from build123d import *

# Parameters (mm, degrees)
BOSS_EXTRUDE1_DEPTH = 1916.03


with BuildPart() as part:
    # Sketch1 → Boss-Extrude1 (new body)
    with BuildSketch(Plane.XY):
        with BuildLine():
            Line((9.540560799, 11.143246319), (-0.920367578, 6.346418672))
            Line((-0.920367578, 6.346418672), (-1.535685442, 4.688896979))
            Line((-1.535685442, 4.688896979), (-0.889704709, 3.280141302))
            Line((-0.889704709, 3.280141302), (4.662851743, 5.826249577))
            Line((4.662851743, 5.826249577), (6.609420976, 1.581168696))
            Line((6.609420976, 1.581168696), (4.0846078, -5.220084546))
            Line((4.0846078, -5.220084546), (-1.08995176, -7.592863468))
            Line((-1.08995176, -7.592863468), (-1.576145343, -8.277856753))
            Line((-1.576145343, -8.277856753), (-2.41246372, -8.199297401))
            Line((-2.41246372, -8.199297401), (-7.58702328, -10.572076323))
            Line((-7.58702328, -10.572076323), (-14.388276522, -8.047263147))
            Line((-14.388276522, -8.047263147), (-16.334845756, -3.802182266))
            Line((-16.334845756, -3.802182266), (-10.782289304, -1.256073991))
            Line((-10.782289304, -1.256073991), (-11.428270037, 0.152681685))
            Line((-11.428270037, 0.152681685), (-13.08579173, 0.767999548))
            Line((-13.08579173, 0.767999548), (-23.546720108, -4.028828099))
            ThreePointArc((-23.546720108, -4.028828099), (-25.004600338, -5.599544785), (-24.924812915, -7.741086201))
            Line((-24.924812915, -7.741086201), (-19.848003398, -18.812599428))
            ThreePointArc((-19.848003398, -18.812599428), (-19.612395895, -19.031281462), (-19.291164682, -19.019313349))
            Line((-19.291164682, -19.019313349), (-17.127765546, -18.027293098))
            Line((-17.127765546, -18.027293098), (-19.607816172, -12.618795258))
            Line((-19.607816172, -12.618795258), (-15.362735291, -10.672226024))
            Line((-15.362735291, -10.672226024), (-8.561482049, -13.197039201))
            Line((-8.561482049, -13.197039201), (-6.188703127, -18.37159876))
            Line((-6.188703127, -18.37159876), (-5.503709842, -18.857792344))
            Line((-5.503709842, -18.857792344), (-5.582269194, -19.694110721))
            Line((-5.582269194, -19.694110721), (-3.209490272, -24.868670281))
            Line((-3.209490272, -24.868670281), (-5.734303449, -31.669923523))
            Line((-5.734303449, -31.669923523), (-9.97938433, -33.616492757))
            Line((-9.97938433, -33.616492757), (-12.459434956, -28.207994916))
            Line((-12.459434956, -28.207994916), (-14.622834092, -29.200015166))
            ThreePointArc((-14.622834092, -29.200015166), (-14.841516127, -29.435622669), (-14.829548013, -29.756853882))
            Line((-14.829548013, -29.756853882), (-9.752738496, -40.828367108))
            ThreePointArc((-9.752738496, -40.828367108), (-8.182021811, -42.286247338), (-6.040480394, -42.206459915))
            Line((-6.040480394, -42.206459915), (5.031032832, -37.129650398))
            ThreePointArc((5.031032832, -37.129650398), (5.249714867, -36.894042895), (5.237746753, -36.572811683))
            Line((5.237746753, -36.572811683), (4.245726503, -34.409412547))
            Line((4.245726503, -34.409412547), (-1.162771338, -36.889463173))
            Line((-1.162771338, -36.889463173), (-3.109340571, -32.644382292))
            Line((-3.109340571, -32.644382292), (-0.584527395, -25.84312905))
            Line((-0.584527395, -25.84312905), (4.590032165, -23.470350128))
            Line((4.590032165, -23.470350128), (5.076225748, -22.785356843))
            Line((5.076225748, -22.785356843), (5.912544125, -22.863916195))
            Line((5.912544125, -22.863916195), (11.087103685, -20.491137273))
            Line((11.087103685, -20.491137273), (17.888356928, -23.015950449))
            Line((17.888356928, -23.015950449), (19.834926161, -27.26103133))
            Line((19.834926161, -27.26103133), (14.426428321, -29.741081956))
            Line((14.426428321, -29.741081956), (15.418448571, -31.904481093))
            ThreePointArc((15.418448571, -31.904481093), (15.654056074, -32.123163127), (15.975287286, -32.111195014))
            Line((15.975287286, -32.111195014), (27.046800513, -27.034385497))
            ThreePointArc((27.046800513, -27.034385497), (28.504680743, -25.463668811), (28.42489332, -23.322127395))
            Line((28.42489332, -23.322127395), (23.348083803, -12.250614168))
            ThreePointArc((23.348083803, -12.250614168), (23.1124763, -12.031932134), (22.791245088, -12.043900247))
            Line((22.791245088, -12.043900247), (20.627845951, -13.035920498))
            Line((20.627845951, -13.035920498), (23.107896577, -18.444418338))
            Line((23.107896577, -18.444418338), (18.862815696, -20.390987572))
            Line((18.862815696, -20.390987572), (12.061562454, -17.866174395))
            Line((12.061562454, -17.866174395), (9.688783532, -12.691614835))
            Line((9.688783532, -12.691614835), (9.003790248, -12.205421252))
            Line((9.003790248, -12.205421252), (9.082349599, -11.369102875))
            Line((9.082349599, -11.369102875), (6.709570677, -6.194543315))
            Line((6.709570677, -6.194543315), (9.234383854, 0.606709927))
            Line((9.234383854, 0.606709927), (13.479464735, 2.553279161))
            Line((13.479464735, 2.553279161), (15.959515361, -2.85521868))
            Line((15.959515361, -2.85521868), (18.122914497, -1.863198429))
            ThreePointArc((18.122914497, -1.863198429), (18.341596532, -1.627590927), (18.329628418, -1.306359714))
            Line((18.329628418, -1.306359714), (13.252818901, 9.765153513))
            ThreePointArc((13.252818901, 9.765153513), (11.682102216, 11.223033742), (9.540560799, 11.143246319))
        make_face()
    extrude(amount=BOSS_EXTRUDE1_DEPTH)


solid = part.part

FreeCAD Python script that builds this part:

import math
import FreeCAD as App
import Part
import Sketcher

doc = App.newDocument("Part")
params = doc.addObject("Spreadsheet::Sheet", "Params")
for row, (alias, value) in enumerate([
    ("sketch1_radius", "2.8 mm"),
    ("sketch1_radius2", "0.42 mm"),
    ("sketch1_length", "0.84 mm"),
    ("sketch1_length2", "12.18 mm"),
    ("sketch1_length3", "2.38 mm"),
    ("pad1_length", "1916.03 mm"),
], start=1):
    params.set(f"A{row}", alias)
    params.set(f"B{row}", "=" + value)
    params.setAlias(f"B{row}", alias)

body = doc.addObject("PartDesign::Body", "Body")

sketch1 = body.newObject("Sketcher::SketchObject", "Sketch")
sketch1.AttachmentSupport = (doc.getObject("XY_Plane"), [""])
sketch1.MapMode = "FlatFace"
sketch1.addGeometry([
    Part.LineSegment(App.Vector(9.54, 11.14, 0), App.Vector(-0.92, 6.35, 0)),
    Part.LineSegment(App.Vector(-0.92, 6.35, 0), App.Vector(-1.54, 4.69, 0)),
    Part.LineSegment(App.Vector(-1.54, 4.69, 0), App.Vector(-0.89, 3.28, 0)),
    Part.LineSegment(App.Vector(-0.89, 3.28, 0), App.Vector(4.66, 5.83, 0)),
    Part.LineSegment(App.Vector(4.66, 5.83, 0), App.Vector(6.61, 1.58, 0)),
    Part.LineSegment(App.Vector(6.61, 1.58, 0), App.Vector(4.08, -5.22, 0)),
    Part.LineSegment(App.Vector(4.08, -5.22, 0), App.Vector(-1.09, -7.59, 0)),
    Part.LineSegment(App.Vector(-1.09, -7.59, 0), App.Vector(-1.58, -8.28, 0)),
    Part.LineSegment(App.Vector(-1.58, -8.28, 0), App.Vector(-2.41, -8.2, 0)),
    Part.LineSegment(App.Vector(-2.41, -8.2, 0), App.Vector(-7.59, -10.57, 0)),
    Part.LineSegment(App.Vector(-7.59, -10.57, 0), App.Vector(-14.39, -8.05, 0)),
    Part.LineSegment(App.Vector(-14.39, -8.05, 0), App.Vector(-16.33, -3.8, 0)),
    Part.LineSegment(App.Vector(-16.33, -3.8, 0), App.Vector(-10.78, -1.26, 0)),
    Part.LineSegment(App.Vector(-10.78, -1.26, 0), App.Vector(-11.43, 0.15, 0)),
    Part.LineSegment(App.Vector(-11.43, 0.15, 0), App.Vector(-13.09, 0.77, 0)),
    Part.LineSegment(App.Vector(-13.09, 0.77, 0), App.Vector(-23.55, -4.03, 0)),
    Part.ArcOfCircle(Part.Circle(App.Vector(-22.38, -6.57, 0), App.Vector(0, 0, 1), 2.8), math.radians(115), math.radians(205)),
    Part.LineSegment(App.Vector(-24.92, -7.74, 0), App.Vector(-19.85, -18.81, 0)),
    Part.ArcOfCircle(Part.Circle(App.Vector(-19.47, -18.64, 0), App.Vector(0, 0, 1), 0.42), math.radians(-155), math.radians(-65)),
    Part.LineSegment(App.Vector(-19.29, -19.02, 0), App.Vector(-17.13, -18.03, 0)),
    Part.LineSegment(App.Vector(-17.13, -18.03, 0), App.Vector(-19.61, -12.62, 0)),
    Part.LineSegment(App.Vector(-19.61, -12.62, 0), App.Vector(-15.36, -10.67, 0)),
    Part.LineSegment(App.Vector(-15.36, -10.67, 0), App.Vector(-8.56, -13.2, 0)),
    Part.LineSegment(App.Vector(-8.56, -13.2, 0), App.Vector(-6.19, -18.37, 0)),
    Part.LineSegment(App.Vector(-6.19, -18.37, 0), App.Vector(-5.5, -18.86, 0)),
    Part.LineSegment(App.Vector(-5.5, -18.86, 0), App.Vector(-5.58, -19.69, 0)),
    Part.LineSegment(App.Vector(-5.58, -19.69, 0), App.Vector(-3.21, -24.87, 0)),
    Part.LineSegment(App.Vector(-3.21, -24.87, 0), App.Vector(-5.73, -31.67, 0)),
    Part.LineSegment(App.Vector(-5.73, -31.67, 0), App.Vector(-9.98, -33.62, 0)),
    Part.LineSegment(App.Vector(-9.98, -33.62, 0), App.Vector(-12.46, -28.21, 0)),
    Part.LineSegment(App.Vector(-12.46, -28.21, 0), App.Vector(-14.62, -29.2, 0)),
    Part.ArcOfCircle(Part.Circle(App.Vector(-14.45, -29.58, 0), App.Vector(0, 0, 1), 0.42), math.radians(115), math.radians(205)),
    Part.LineSegment(App.Vector(-14.83, -29.76, 0), App.Vector(-9.75, -40.83, 0)),
    Part.ArcOfCircle(Part.Circle(App.Vector(-7.21, -39.66, 0), App.Vector(0, 0, 1), 2.8), math.radians(-155), math.radians(-65)),
    Part.LineSegment(App.Vector(-6.04, -42.21, 0), App.Vector(5.03, -37.13, 0)),
    Part.ArcOfCircle(Part.Circle(App.Vector(4.86, -36.75, 0), App.Vector(0, 0, 1), 0.42), math.radians(-65), math.radians(25)),
    Part.LineSegment(App.Vector(5.24, -36.57, 0), App.Vector(4.25, -34.41, 0)),
    Part.LineSegment(App.Vector(4.25, -34.41, 0), App.Vector(-1.16, -36.89, 0)),
    Part.LineSegment(App.Vector(-1.16, -36.89, 0), App.Vector(-3.11, -32.64, 0)),
    Part.LineSegment(App.Vector(-3.11, -32.64, 0), App.Vector(-0.58, -25.84, 0)),
    Part.LineSegment(App.Vector(-0.58, -25.84, 0), App.Vector(4.59, -23.47, 0)),
    Part.LineSegment(App.Vector(4.59, -23.47, 0), App.Vector(5.08, -22.79, 0)),
    Part.LineSegment(App.Vector(5.08, -22.79, 0), App.Vector(5.91, -22.86, 0)),
    Part.LineSegment(App.Vector(5.91, -22.86, 0), App.Vector(11.09, -20.49, 0)),
    Part.LineSegment(App.Vector(11.09, -20.49, 0), App.Vector(17.89, -23.02, 0)),
    Part.LineSegment(App.Vector(17.89, -23.02, 0), App.Vector(19.83, -27.26, 0)),
    Part.LineSegment(App.Vector(19.83, -27.26, 0), App.Vector(14.43, -29.74, 0)),
    Part.LineSegment(App.Vector(14.43, -29.74, 0), App.Vector(15.42, -31.9, 0)),
    Part.ArcOfCircle(Part.Circle(App.Vector(15.8, -31.73, 0), App.Vector(0, 0, 1), 0.42), math.radians(-155), math.radians(-65)),
    Part.LineSegment(App.Vector(15.98, -32.11, 0), App.Vector(27.05, -27.03, 0)),
    Part.ArcOfCircle(Part.Circle(App.Vector(25.88, -24.49, 0), App.Vector(0, 0, 1), 2.8), math.radians(-65), math.radians(25)),
    Part.LineSegment(App.Vector(28.42, -23.32, 0), App.Vector(23.35, -12.25, 0)),
    Part.ArcOfCircle(Part.Circle(App.Vector(22.97, -12.43, 0), App.Vector(0, 0, 1), 0.42), math.radians(25), math.radians(115)),
    Part.LineSegment(App.Vector(22.79, -12.04, 0), App.Vector(20.63, -13.04, 0)),
    Part.LineSegment(App.Vector(20.63, -13.04, 0), App.Vector(23.11, -18.44, 0)),
    Part.LineSegment(App.Vector(23.11, -18.44, 0), App.Vector(18.86, -20.39, 0)),
    Part.LineSegment(App.Vector(18.86, -20.39, 0), App.Vector(12.06, -17.87, 0)),
    Part.LineSegment(App.Vector(12.06, -17.87, 0), App.Vector(9.69, -12.69, 0)),
    Part.LineSegment(App.Vector(9.69, -12.69, 0), App.Vector(9, -12.21, 0)),
    Part.LineSegment(App.Vector(9, -12.21, 0), App.Vector(9.08, -11.37, 0)),
    Part.LineSegment(App.Vector(9.08, -11.37, 0), App.Vector(6.71, -6.19, 0)),
    Part.LineSegment(App.Vector(6.71, -6.19, 0), App.Vector(9.23, 0.61, 0)),
    Part.LineSegment(App.Vector(9.23, 0.61, 0), App.Vector(13.48, 2.55, 0)),
    Part.LineSegment(App.Vector(13.48, 2.55, 0), App.Vector(15.96, -2.86, 0)),
    Part.LineSegment(App.Vector(15.96, -2.86, 0), App.Vector(18.12, -1.86, 0)),
    Part.ArcOfCircle(Part.Circle(App.Vector(17.95, -1.48, 0), App.Vector(0, 0, 1), 0.42), math.radians(-65), math.radians(25)),
    Part.LineSegment(App.Vector(18.33, -1.31, 0), App.Vector(13.25, 9.77, 0)),
    Part.ArcOfCircle(Part.Circle(App.Vector(10.71, 8.6, 0), App.Vector(0, 0, 1), 2.8), math.radians(25), math.radians(115)),
], False)
sketch1.addConstraint([
    Sketcher.Constraint("Coincident", 0, 2, 1, 1),
    Sketcher.Constraint("Coincident", 1, 2, 2, 1),
    Sketcher.Constraint("Coincident", 2, 2, 3, 1),
    Sketcher.Constraint("Coincident", 3, 2, 4, 1),
    Sketcher.Constraint("Coincident", 4, 2, 5, 1),
    Sketcher.Constraint("Coincident", 5, 2, 6, 1),
    Sketcher.Constraint("Coincident", 6, 2, 7, 1),
    Sketcher.Constraint("Coincident", 7, 2, 8, 1),
    Sketcher.Constraint("Coincident", 8, 2, 9, 1),
    Sketcher.Constraint("Coincident", 9, 2, 10, 1),
    Sketcher.Constraint("Coincident", 10, 2, 11, 1),
    Sketcher.Constraint("Coincident", 11, 2, 12, 1),
    Sketcher.Constraint("Coincident", 12, 2, 13, 1),
    Sketcher.Constraint("Coincident", 13, 2, 14, 1),
    Sketcher.Constraint("Coincident", 14, 2, 15, 1),
    Sketcher.Constraint("Tangent", 15, 2, 16, 1),
    Sketcher.Constraint("Tangent", 16, 2, 17, 1),
    Sketcher.Constraint("Tangent", 17, 2, 18, 1),
    Sketcher.Constraint("Tangent", 18, 2, 19, 1),
    Sketcher.Constraint("Coincident", 19, 2, 20, 1),
    Sketcher.Constraint("Coincident", 20, 2, 21, 1),
    Sketcher.Constraint("Coincident", 21, 2, 22, 1),
    Sketcher.Constraint("Coincident", 22, 2, 23, 1),
    Sketcher.Constraint("Coincident", 23, 2, 24, 1),
    Sketcher.Constraint("Coincident", 24, 2, 25, 1),
    Sketcher.Constraint("Coincident", 25, 2, 26, 1),
    Sketcher.Constraint("Coincident", 26, 2, 27, 1),
    Sketcher.Constraint("Coincident", 27, 2, 28, 1),
    Sketcher.Constraint("Coincident", 28, 2, 29, 1),
    Sketcher.Constraint("Coincident", 29, 2, 30, 1),
    Sketcher.Constraint("Tangent", 30, 2, 31, 1),
    Sketcher.Constraint("Tangent", 31, 2, 32, 1),
    Sketcher.Constraint("Tangent", 32, 2, 33, 1),
    Sketcher.Constraint("Tangent", 33, 2, 34, 1),
    Sketcher.Constraint("Tangent", 34, 2, 35, 1),
    Sketcher.Constraint("Tangent", 35, 2, 36, 1),
    Sketcher.Constraint("Coincident", 36, 2, 37, 1),
    Sketcher.Constraint("Coincident", 37, 2, 38, 1),
    Sketcher.Constraint("Coincident", 38, 2, 39, 1),
    Sketcher.Constraint("Coincident", 39, 2, 40, 1),
    Sketcher.Constraint("Coincident", 40, 2, 41, 1),
    Sketcher.Constraint("Coincident", 41, 2, 42, 1),
    Sketcher.Constraint("Coincident", 42, 2, 43, 1),
    Sketcher.Constraint("Coincident", 43, 2, 44, 1),
    Sketcher.Constraint("Coincident", 44, 2, 45, 1),
    Sketcher.Constraint("Coincident", 45, 2, 46, 1),
    Sketcher.Constraint("Coincident", 46, 2, 47, 1),
    Sketcher.Constraint("Tangent", 47, 2, 48, 1),
    Sketcher.Constraint("Tangent", 48, 2, 49, 1),
    Sketcher.Constraint("Tangent", 49, 2, 50, 1),
    Sketcher.Constraint("Tangent", 50, 2, 51, 1),
    Sketcher.Constraint("Tangent", 51, 2, 52, 1),
    Sketcher.Constraint("Tangent", 52, 2, 53, 1),
    Sketcher.Constraint("Coincident", 53, 2, 54, 1),
    Sketcher.Constraint("Coincident", 54, 2, 55, 1),
    Sketcher.Constraint("Coincident", 55, 2, 56, 1),
    Sketcher.Constraint("Coincident", 56, 2, 57, 1),
    Sketcher.Constraint("Coincident", 57, 2, 58, 1),
    Sketcher.Constraint("Coincident", 58, 2, 59, 1),
    Sketcher.Constraint("Coincident", 59, 2, 60, 1),
    Sketcher.Constraint("Coincident", 60, 2, 61, 1),
    Sketcher.Constraint("Coincident", 61, 2, 62, 1),
    Sketcher.Constraint("Coincident", 62, 2, 63, 1),
    Sketcher.Constraint("Coincident", 63, 2, 64, 1),
    Sketcher.Constraint("Tangent", 64, 2, 65, 1),
    Sketcher.Constraint("Tangent", 65, 2, 66, 1),
    Sketcher.Constraint("Tangent", 66, 2, 67, 1),
    Sketcher.Constraint("Tangent", 67, 2, 0, 1),
    Sketcher.Constraint("Equal", 18, 31),
    Sketcher.Constraint("Equal", 16, 33),
    Sketcher.Constraint("Equal", 31, 35),
    Sketcher.Constraint("Equal", 35, 48),
    Sketcher.Constraint("Equal", 33, 50),
    Sketcher.Constraint("Equal", 48, 52),
    Sketcher.Constraint("Equal", 52, 65),
    Sketcher.Constraint("Equal", 50, 67),
    Sketcher.Constraint("Perpendicular", 0, 2),
    Sketcher.Constraint("Perpendicular", 2, 3),
    Sketcher.Constraint("Perpendicular", 3, 4),
    Sketcher.Constraint("Parallel", 1, 5),
    Sketcher.Constraint("Perpendicular", 4, 6),
    Sketcher.Constraint("Parallel", 6, 9),
    Sketcher.Constraint("Perpendicular", 5, 10),
    Sketcher.Constraint("Perpendicular", 9, 11),
    Sketcher.Constraint("Perpendicular", 11, 12),
    Sketcher.Constraint("Perpendicular", 12, 13),
    Sketcher.Constraint("Parallel", 10, 14),
    Sketcher.Constraint("Perpendicular", 13, 15),
    Sketcher.Constraint("Perpendicular", 15, 17),
    Sketcher.Constraint("Perpendicular", 17, 19),
    Sketcher.Constraint("Perpendicular", 19, 20),
    Sketcher.Constraint("Perpendicular", 20, 21),
    Sketcher.Constraint("Parallel", 14, 22),
    Sketcher.Constraint("Perpendicular", 21, 23),
    Sketcher.Constraint("Perpendicular", 7, 24),
    Sketcher.Constraint("Perpendicular", 8, 25),
    Sketcher.Constraint("Parallel", 23, 26),
    Sketcher.Constraint("Perpendicular", 22, 27),
    Sketcher.Constraint("Perpendicular", 26, 28),
    Sketcher.Constraint("Perpendicular", 28, 29),
    Sketcher.Constraint("Perpendicular", 29, 30),
    Sketcher.Constraint("Perpendicular", 30, 32),
    Sketcher.Constraint("Perpendicular", 32, 34),
    Sketcher.Constraint("Perpendicular", 34, 36),
    Sketcher.Constraint("Perpendicular", 36, 37),
    Sketcher.Constraint("Perpendicular", 37, 38),
    Sketcher.Constraint("Parallel", 27, 39),
    Sketcher.Constraint("Perpendicular", 38, 40),
    Sketcher.Constraint("Perpendicular", 24, 41),
    Sketcher.Constraint("Perpendicular", 25, 42),
    Sketcher.Constraint("Parallel", 40, 43),
    Sketcher.Constraint("Perpendicular", 39, 44),
    Sketcher.Constraint("Perpendicular", 43, 45),
    Sketcher.Constraint("Perpendicular", 45, 46),
    Sketcher.Constraint("Perpendicular", 46, 47),
    Sketcher.Constraint("Perpendicular", 47, 49),
    Sketcher.Constraint("Perpendicular", 49, 51),
    Sketcher.Constraint("Perpendicular", 51, 53),
    Sketcher.Constraint("Perpendicular", 53, 54),
    Sketcher.Constraint("Perpendicular", 54, 55),
    Sketcher.Constraint("Parallel", 44, 56),
    Sketcher.Constraint("Perpendicular", 55, 57),
    Sketcher.Constraint("Perpendicular", 41, 58),
    Sketcher.Constraint("Perpendicular", 42, 59),
    Sketcher.Constraint("Parallel", 57, 60),
    Sketcher.Constraint("Perpendicular", 56, 61),
    Sketcher.Constraint("Perpendicular", 60, 62),
    Sketcher.Constraint("Perpendicular", 62, 63),
    Sketcher.Constraint("Perpendicular", 63, 64),
    Sketcher.Constraint("Perpendicular", 64, 66),
    Sketcher.Constraint("Equal", 7, 8),
    Sketcher.Constraint("Equal", 6, 9),
    Sketcher.Constraint("Equal", 5, 10),
    Sketcher.Constraint("Equal", 4, 11),
    Sketcher.Constraint("Equal", 3, 12),
    Sketcher.Constraint("Equal", 2, 13),
    Sketcher.Constraint("Equal", 1, 14),
    Sketcher.Constraint("Equal", 0, 15),
    Sketcher.Constraint("Equal", 11, 21),
    Sketcher.Constraint("Equal", 10, 22),
    Sketcher.Constraint("Equal", 9, 23),
    Sketcher.Constraint("Equal", 8, 24),
    Sketcher.Constraint("Equal", 24, 25),
    Sketcher.Constraint("Equal", 23, 26),
    Sketcher.Constraint("Equal", 22, 27),
    Sketcher.Constraint("Equal", 21, 28),
    Sketcher.Constraint("Equal", 20, 29),
    Sketcher.Constraint("Equal", 19, 30),
    Sketcher.Constraint("Equal", 17, 32),
    Sketcher.Constraint("Equal", 32, 34),
    Sketcher.Constraint("Equal", 30, 36),
    Sketcher.Constraint("Equal", 29, 37),
    Sketcher.Constraint("Equal", 28, 38),
    Sketcher.Constraint("Equal", 27, 39),
    Sketcher.Constraint("Equal", 26, 40),
    Sketcher.Constraint("Equal", 25, 41),
    Sketcher.Constraint("Equal", 41, 42),
    Sketcher.Constraint("Equal", 40, 43),
    Sketcher.Constraint("Equal", 39, 44),
    Sketcher.Constraint("Equal", 38, 45),
    Sketcher.Constraint("Equal", 37, 46),
    Sketcher.Constraint("Equal", 36, 47),
    Sketcher.Constraint("Equal", 34, 49),
    Sketcher.Constraint("Equal", 49, 51),
    Sketcher.Constraint("Equal", 47, 53),
    Sketcher.Constraint("Equal", 46, 54),
    Sketcher.Constraint("Equal", 45, 55),
    Sketcher.Constraint("Equal", 44, 56),
    Sketcher.Constraint("Equal", 43, 57),
    Sketcher.Constraint("Equal", 42, 58),
    Sketcher.Constraint("Equal", 58, 59),
    Sketcher.Constraint("Equal", 57, 60),
    Sketcher.Constraint("Equal", 56, 61),
    Sketcher.Constraint("Equal", 55, 62),
    Sketcher.Constraint("Equal", 54, 63),
    Sketcher.Constraint("Equal", 53, 64),
    Sketcher.Constraint("Equal", 51, 66),
    Sketcher.Constraint("Radius", 16, 2.8),
    Sketcher.Constraint("Radius", 18, 0.42),
    Sketcher.Constraint("Distance", 7, 0.84),
    Sketcher.Constraint("Distance", 17, 12.18),
    Sketcher.Constraint("Distance", 19, 2.38),
    Sketcher.Constraint("Distance", 20, 5.95),
    Sketcher.Constraint("DistanceY", -1, 1, 14, 2, 0.768),
    Sketcher.Constraint("Distance", 2, 1.549801),
    Sketcher.Constraint("Distance", 4, 4.670101),
    Sketcher.Constraint("DistanceY", 17, 2, -1, 1, 18.812599),
    Sketcher.Constraint("DistanceY", 23, 2, -1, 1, 18.371599),
    Sketcher.Constraint("DistanceX", -1, 1, 49, 2, 27.046801),
    Sketcher.Constraint("DistanceY", 52, 2, -1, 1, 12.0439),
    Sketcher.Constraint("DistanceY", 64, 2, -1, 1, 1.863198),
    Sketcher.Constraint("Distance", 1, 1.768048),
    Sketcher.Constraint("Distance", 3, 6.108482),
    Sketcher.Constraint("Distance", 6, 5.69264),
])
sketch1.setExpression("Constraints[177]", "Params.sketch1_radius")
sketch1.setExpression("Constraints[178]", "Params.sketch1_radius2")
sketch1.setExpression("Constraints[179]", "Params.sketch1_length")
sketch1.setExpression("Constraints[180]", "Params.sketch1_length2")
sketch1.setExpression("Constraints[181]", "Params.sketch1_length3")
pad1 = body.newObject("PartDesign::Pad", "Pad")
pad1.Profile = sketch1
pad1.setExpression("Length", "Params.pad1_length")

doc.recompute()
